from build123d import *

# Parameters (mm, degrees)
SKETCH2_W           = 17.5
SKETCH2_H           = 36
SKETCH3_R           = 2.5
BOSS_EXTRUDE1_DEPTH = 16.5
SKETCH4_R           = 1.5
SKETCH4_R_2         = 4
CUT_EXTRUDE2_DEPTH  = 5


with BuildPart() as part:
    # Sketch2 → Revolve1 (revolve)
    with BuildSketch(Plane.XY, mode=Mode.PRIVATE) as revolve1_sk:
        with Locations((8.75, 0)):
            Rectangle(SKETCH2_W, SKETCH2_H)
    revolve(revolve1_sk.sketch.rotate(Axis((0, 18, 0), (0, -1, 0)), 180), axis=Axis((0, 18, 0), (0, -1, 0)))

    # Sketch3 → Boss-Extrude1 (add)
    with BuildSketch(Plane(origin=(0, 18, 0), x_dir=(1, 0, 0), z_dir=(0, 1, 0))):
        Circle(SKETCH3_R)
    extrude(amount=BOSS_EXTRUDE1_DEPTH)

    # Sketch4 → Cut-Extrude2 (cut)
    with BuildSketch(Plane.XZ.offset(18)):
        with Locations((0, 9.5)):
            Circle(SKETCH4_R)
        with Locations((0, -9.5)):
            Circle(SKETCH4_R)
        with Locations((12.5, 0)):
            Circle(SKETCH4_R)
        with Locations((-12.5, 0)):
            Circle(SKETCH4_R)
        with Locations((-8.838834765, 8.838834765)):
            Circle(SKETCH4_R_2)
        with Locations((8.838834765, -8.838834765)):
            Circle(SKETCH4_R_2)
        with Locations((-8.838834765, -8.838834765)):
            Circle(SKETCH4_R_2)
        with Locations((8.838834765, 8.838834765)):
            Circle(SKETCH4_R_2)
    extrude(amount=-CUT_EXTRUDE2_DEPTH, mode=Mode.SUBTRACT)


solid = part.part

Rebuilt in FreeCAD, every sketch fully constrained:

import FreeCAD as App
import Part
import Sketcher

V = App.Vector
Q = App.Units.Quantity


def add_polygon(sketch, points):
    """Adds a closed chain of lines whose ends are joined by coincident constraints."""
    first, n = sketch.GeometryCount, len(points)
    for a, b in zip(points, points[1:] + points[:1]):
        sketch.addGeometry(Part.LineSegment(App.Vector(*a, 0), App.Vector(*b, 0)), False)
    for i in range(n):
        sketch.addConstraint(Sketcher.Constraint("Coincident", first + i, 2, first + (i + 1) % n, 1))

doc = App.newDocument("Part")
body = doc.addObject("PartDesign::Body", "Body")

# Sketch on XY plane
sketch1 = body.newObject("Sketcher::SketchObject", "Sketch")
sketch1.AttachmentSupport = (doc.getObject("XY_Plane"), [""])
sketch1.MapMode = "FlatFace"
add_polygon(sketch1, [(0, 18), (0, -18), (18, -18), (18, 18)])  # lines 0-3
sketch1.addConstraint(Sketcher.Constraint("Vertical", 0))
sketch1.addConstraint(Sketcher.Constraint("Horizontal", 1))
sketch1.addConstraint(Sketcher.Constraint("Vertical", 2))
sketch1.addConstraint(Sketcher.Constraint("Horizontal", 3))
sketch1.addConstraint(Sketcher.Constraint("Symmetric", 0, 2, 3, 2, -1, 1))
sketch1.addConstraint(Sketcher.Constraint("DistanceY", 0, 2, 0, 1, Q("36 mm")))
sketch1.addConstraint(Sketcher.Constraint("DistanceX", 1, 1, 1, 2, Q("17.5 mm")))
revolution = body.newObject("PartDesign::Revolution", "Revolution")
revolution.Profile = sketch1
revolution.ReferenceAxis = (sketch1, ["V_Axis"])
revolution.Angle = 360

# Sketch on XZ plane
sketch2 = body.newObject("Sketcher::SketchObject", "Sketch001")
sketch2.AttachmentSupport = (doc.getObject("XZ_Plane"), [""])
sketch2.MapMode = "FlatFace"
sketch2.AttachmentOffset = App.Placement(V(0, 0, -18), App.Rotation())
sketch2.addGeometry(Part.Circle(V(0, 0, 0), V(0, 0, 1), 2.5), False)
sketch2.addConstraint(Sketcher.Constraint("Coincident", 0, 3, -1, 1))
sketch2.addConstraint(Sketcher.Constraint("Diameter", 0, Q("5 mm")))
pad1 = body.newObject("PartDesign::Pad", "Pad")
pad1.Profile = sketch2
pad1.Length = 16.5
pad1.Reversed = True

# Sketch on XZ plane
sketch3 = body.newObject("Sketcher::SketchObject", "Sketch002")
sketch3.AttachmentSupport = (doc.getObject("XZ_Plane"), [""])
sketch3.MapMode = "FlatFace"
sketch3.AttachmentOffset = App.Placement(V(0, 0, 18), App.Rotation())
sketch3.addGeometry(Part.Circle(V(0, 9.5, 0), V(0, 0, 1), 1.5), False)
sketch3.addGeometry(Part.Circle(V(0, -9.5, 0), V(0, 0, 1), 1.5), False)
sketch3.addGeometry(Part.Circle(V(12.5, 0, 0), V(0, 0, 1), 1.5), False)
sketch3.addGeometry(Part.Circle(V(-12.5, 0, 0), V(0, 0, 1), 1.5), False)
sketch3.addGeometry(Part.Circle(V(-8.8, 8.8, 0), V(0, 0, 1), 4), False)
sketch3.addGeometry(Part.Circle(V(8.8, -8.8, 0), V(0, 0, 1), 4), False)
sketch3.addGeometry(Part.Circle(V(-8.8, -8.8, 0), V(0, 0, 1), 4), False)
sketch3.addGeometry(Part.Circle(V(8.8, 8.8, 0), V(0, 0, 1), 4), False)
sketch3.addConstraint(Sketcher.Constraint("Equal", 0, 1))
sketch3.addConstraint(Sketcher.Constraint("Equal", 1, 2))
sketch3.addConstraint(Sketcher.Constraint("Equal", 2, 3))
sketch3.addConstraint(Sketcher.Constraint("Equal", 4, 5))
sketch3.addConstraint(Sketcher.Constraint("Equal", 5, 6))
sketch3.addConstraint(Sketcher.Constraint("Equal", 6, 7))
sketch3.addConstraint(Sketcher.Constraint("Symmetric", 0, 3, 1, 3, -1, 1))
sketch3.addConstraint(Sketcher.Constraint("Symmetric", 2, 3, 3, 3, -1, 1))
sketch3.addConstraint(Sketcher.Constraint("Symmetric", 4, 3, 5, 3, -1, 1))
sketch3.addConstraint(Sketcher.Constraint("Symmetric", 6, 3, 7, 3, -1, 1))
sketch3.addConstraint(Sketcher.Constraint("Symmetric", 5, 3, 6, 3, -2))
sketch3.addConstraint(Sketcher.Constraint("PointOnObject", 0, 3, -2))
sketch3.addConstraint(Sketcher.Constraint("PointOnObject", 2, 3, -1))
sketch3.addConstraint(Sketcher.Constraint("Diameter", 0, Q("3 mm")))
sketch3.addConstraint(Sketcher.Constraint("Diameter", 4, Q("8 mm")))
sketch3.addConstraint(Sketcher.Constraint("DistanceY", 1, 3, 0, 3, Q("19 mm")))
sketch3.addConstraint(Sketcher.Constraint("DistanceX", 3, 3, 2, 3, Q("25 mm")))
sketch3.addConstraint(Sketcher.Constraint("DistanceX", 4, 3, 5, 3, Q("17.67767 mm")))
sketch3.addConstraint(Sketcher.Constraint("DistanceY", 5, 3, 4, 3, Q("17.67767 mm")))
pocket1 = body.newObject("PartDesign::Pocket", "Pocket")
pocket1.Profile = sketch3
pocket1.Length = 5

doc.recompute()
